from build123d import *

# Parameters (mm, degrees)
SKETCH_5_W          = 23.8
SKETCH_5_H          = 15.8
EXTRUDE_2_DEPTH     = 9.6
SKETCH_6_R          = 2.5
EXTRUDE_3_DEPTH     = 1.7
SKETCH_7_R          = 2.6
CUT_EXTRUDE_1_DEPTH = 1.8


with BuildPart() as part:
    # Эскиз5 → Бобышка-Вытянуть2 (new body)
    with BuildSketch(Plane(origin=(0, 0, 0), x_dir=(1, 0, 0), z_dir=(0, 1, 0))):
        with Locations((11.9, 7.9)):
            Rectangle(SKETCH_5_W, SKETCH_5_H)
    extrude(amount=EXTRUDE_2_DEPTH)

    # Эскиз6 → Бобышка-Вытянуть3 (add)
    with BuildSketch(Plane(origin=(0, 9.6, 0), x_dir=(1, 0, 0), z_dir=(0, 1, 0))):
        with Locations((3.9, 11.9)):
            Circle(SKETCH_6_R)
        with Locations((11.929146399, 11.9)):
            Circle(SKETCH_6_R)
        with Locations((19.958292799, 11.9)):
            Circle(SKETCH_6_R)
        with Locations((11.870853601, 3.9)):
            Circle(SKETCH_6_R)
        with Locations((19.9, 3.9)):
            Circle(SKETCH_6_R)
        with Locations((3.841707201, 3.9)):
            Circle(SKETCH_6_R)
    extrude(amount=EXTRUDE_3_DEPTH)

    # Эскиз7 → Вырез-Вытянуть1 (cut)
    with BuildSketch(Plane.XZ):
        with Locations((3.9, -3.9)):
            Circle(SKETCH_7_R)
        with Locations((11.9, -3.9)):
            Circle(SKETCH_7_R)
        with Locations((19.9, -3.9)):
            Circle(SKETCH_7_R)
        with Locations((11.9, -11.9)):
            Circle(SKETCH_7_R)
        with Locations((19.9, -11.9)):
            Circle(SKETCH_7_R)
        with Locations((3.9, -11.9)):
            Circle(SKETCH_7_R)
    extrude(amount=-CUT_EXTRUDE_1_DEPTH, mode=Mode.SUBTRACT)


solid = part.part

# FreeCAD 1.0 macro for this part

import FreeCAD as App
import Part
import Sketcher
from FreeCAD import Vector
Q = App.Units.Quantity

doc = App.newDocument("Part")
body = doc.addObject("PartDesign::Body", "Body")

sketch1 = doc.addObject("Sketcher::SketchObject", "Sketch")
body.addObject(sketch1)
sketch1.AttachmentSupport = (doc.XZ_Plane, [""])
sketch1.MapMode = "FlatFace"
sketch1.addGeometry([
    Part.LineSegment(Vector(0, -15.8, 0), Vector(0, 0, 0)),
    Part.LineSegment(Vector(0, 0, 0), Vector(23.8, 0, 0)),
    Part.LineSegment(Vector(23.8, 0, 0), Vector(23.8, -15.8, 0)),
    Part.LineSegment(Vector(23.8, -15.8, 0), Vector(0, -15.8, 0)),
], False)
sketch1.addConstraint([
    Sketcher.Constraint("Coincident", 0, 2, 1, 1),
    Sketcher.Constraint("Coincident", 1, 2, 2, 1),
    Sketcher.Constraint("Coincident", 2, 2, 3, 1),
    Sketcher.Constraint("Coincident", 3, 2, 0, 1),
    Sketcher.Constraint("Vertical", 0),
    Sketcher.Constraint("Horizontal", 1),
    Sketcher.Constraint("Vertical", 2),
    Sketcher.Constraint("Horizontal", 3),
    Sketcher.Constraint("Coincident", 0, 2, -1, 1),
    Sketcher.Constraint("DistanceX", 1, 1, 1, 2, Q("23.8 mm")),
    Sketcher.Constraint("DistanceY", 0, 1, 0, 2, Q("15.8 mm")),
])
pad1 = doc.addObject("PartDesign::Pad", "Pad")
body.addObject(pad1)
pad1.Profile = sketch1
pad1.Length = 9.6
pad1.Reversed = True

sketch2 = doc.addObject("Sketcher::SketchObject", "Sketch001")
body.addObject(sketch2)
sketch2.AttachmentSupport = (doc.XZ_Plane, [""])
sketch2.MapMode = "FlatFace"
sketch2.AttachmentOffset = App.Placement(Vector(0, 0, -9.6), App.Rotation())
sketch2.addGeometry([
    Part.Circle(Vector(3.9, -11.9, 0), Vector(0, 0, 1), 2.5),
    Part.Circle(Vector(11.929146, -11.9, 0), Vector(0, 0, 1), 2.5),
    Part.Circle(Vector(19.958293, -11.9, 0), Vector(0, 0, 1), 2.5),
    Part.Circle(Vector(11.870854, -3.9, 0), Vector(0, 0, 1), 2.5),
    Part.Circle(Vector(19.9, -3.9, 0), Vector(0, 0, 1), 2.5),
    Part.Circle(Vector(3.841707, -3.9, 0), Vector(0, 0, 1), 2.5),
], False)
sketch2.addConstraint([
    Sketcher.Constraint("Equal", 0, 1),
    Sketcher.Constraint("Equal", 1, 2),
    Sketcher.Constraint("Equal", 2, 3),
    Sketcher.Constraint("Equal", 3, 4),
    Sketcher.Constraint("Equal", 4, 5),
    Sketcher.Constraint("Horizontal", 0, 3, 1, 3),
    Sketcher.Constraint("Horizontal", 1, 3, 2, 3),
    Sketcher.Constraint("Horizontal", 3, 3, 4, 3),
    Sketcher.Constraint("Horizontal", 4, 3, 5, 3),
    Sketcher.Constraint("Diameter", 0, Q("5 mm")),
    Sketcher.Constraint("DistanceY", 1, 3, 3, 3, Q("8 mm")),
    Sketcher.Constraint("DistanceX", 0, 3, 4, 3, Q("16 mm")),
    Sketcher.Constraint("DistanceX", -1, 1, 0, 3, Q("3.9 mm")),
    Sketcher.Constraint("DistanceY", 0, 3, -1, 1, Q("11.9 mm")),
    Sketcher.Constraint("DistanceX", 3, 3, 2, 3, Q("8.087439 mm")),
    Sketcher.Constraint("DistanceX", 5, 3, 1, 3, Q("8.087439 mm")),
    Sketcher.Constraint("DistanceX", -1, 1, 1, 3, Q("11.929146 mm")),
    Sketcher.Constraint("DistanceX", -1, 1, 2, 3, Q("19.958293 mm")),
])
pad2 = doc.addObject("PartDesign::Pad", "Pad001")
body.addObject(pad2)
pad2.Profile = sketch2
pad2.Length = 1.7
pad2.Reversed = True

sketch3 = doc.addObject("Sketcher::SketchObject", "Sketch002")
body.addObject(sketch3)
sketch3.AttachmentSupport = (doc.XZ_Plane, [""])
sketch3.MapMode = "FlatFace"
sketch3.addGeometry([
    Part.Circle(Vector(3.9, -3.9, 0), Vector(0, 0, 1), 2.6),
    Part.Circle(Vector(11.9, -3.9, 0), Vector(0, 0, 1), 2.6),
    Part.Circle(Vector(19.9, -3.9, 0), Vector(0, 0, 1), 2.6),
    Part.Circle(Vector(11.9, -11.9, 0), Vector(0, 0, 1), 2.6),
    Part.Circle(Vector(19.9, -11.9, 0), Vector(0, 0, 1), 2.6),
    Part.Circle(Vector(3.9, -11.9, 0), Vector(0, 0, 1), 2.6),
], False)
sketch3.addConstraint([
    Sketcher.Constraint("Equal", 0, 1),
    Sketcher.Constraint("Equal", 1, 2),
    Sketcher.Constraint("Equal", 2, 3),
    Sketcher.Constraint("Equal", 3, 4),
    Sketcher.Constraint("Equal", 4, 5),
    Sketcher.Constraint("Horizontal", 0, 3, 1, 3),
    Sketcher.Constraint("Horizontal", 1, 3, 2, 3),
    Sketcher.Constraint("Horizontal", 3, 3, 4, 3),
    Sketcher.Constraint("Horizontal", 4, 3, 5, 3),
    Sketcher.Constraint("Vertical", 1, 3, 3, 3),
    Sketcher.Constraint("Vertical", 2, 3, 4, 3),
    Sketcher.Constraint("Vertical", 0, 3, 5, 3),
    Sketcher.Constraint("Diameter", 0, Q("5.2 mm")),
    Sketcher.Constraint("DistanceX", 0, 3, 1, 3, Q("8 mm")),
    Sketcher.Constraint("DistanceX", 1, 3, 2, 3, Q("8 mm")),
    Sketcher.Constraint("DistanceY", 3, 3, 1, 3, Q("8 mm")),
    Sketcher.Constraint("DistanceX", -1, 1, 0, 3, Q("3.9 mm")),
    Sketcher.Constraint("DistanceY", 0, 3, -1, 1, Q("3.9 mm")),
])
pocket1 = doc.addObject("PartDesign::Pocket", "Pocket")
body.addObject(pocket1)
pocket1.Profile = sketch3
pocket1.Length = 1.8

doc.recompute()
